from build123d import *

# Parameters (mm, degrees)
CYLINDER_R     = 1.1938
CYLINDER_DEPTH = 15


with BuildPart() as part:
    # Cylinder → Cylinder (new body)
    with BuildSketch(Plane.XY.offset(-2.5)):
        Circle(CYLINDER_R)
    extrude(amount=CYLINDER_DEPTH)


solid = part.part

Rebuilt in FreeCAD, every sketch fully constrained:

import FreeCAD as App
import Part
import Sketcher

V = App.Vector
Q = App.Units.Quantity

doc = App.newDocument("Part")
body = doc.addObject("PartDesign::Body", "Body")

# Sketch on XY plane
sketch1 = body.newObject("Sketcher::SketchObject", "Sketch")
sketch1.AttachmentSupport = (doc.getObject("XY_Plane"), [""])
sketch1.MapMode = "FlatFace"
sketch1.AttachmentOffset = App.Placement(V(0, 0, -2.5), App.Rotation())
sketch1.addGeometry(Part.Circle(V(0, 0, 0), V(0, 0, 1), 1.1938), False)
sketch1.addConstraint([
    Sketcher.Constraint("Coincident", 0, 3, -1, 1),
    Sketcher.Constraint("Diameter", 0, Q("2.3876 mm")),
])
pad1 = body.newObject("PartDesign::Pad", "Pad")
pad1.Profile = sketch1
pad1.Length = 15

doc.recompute()
